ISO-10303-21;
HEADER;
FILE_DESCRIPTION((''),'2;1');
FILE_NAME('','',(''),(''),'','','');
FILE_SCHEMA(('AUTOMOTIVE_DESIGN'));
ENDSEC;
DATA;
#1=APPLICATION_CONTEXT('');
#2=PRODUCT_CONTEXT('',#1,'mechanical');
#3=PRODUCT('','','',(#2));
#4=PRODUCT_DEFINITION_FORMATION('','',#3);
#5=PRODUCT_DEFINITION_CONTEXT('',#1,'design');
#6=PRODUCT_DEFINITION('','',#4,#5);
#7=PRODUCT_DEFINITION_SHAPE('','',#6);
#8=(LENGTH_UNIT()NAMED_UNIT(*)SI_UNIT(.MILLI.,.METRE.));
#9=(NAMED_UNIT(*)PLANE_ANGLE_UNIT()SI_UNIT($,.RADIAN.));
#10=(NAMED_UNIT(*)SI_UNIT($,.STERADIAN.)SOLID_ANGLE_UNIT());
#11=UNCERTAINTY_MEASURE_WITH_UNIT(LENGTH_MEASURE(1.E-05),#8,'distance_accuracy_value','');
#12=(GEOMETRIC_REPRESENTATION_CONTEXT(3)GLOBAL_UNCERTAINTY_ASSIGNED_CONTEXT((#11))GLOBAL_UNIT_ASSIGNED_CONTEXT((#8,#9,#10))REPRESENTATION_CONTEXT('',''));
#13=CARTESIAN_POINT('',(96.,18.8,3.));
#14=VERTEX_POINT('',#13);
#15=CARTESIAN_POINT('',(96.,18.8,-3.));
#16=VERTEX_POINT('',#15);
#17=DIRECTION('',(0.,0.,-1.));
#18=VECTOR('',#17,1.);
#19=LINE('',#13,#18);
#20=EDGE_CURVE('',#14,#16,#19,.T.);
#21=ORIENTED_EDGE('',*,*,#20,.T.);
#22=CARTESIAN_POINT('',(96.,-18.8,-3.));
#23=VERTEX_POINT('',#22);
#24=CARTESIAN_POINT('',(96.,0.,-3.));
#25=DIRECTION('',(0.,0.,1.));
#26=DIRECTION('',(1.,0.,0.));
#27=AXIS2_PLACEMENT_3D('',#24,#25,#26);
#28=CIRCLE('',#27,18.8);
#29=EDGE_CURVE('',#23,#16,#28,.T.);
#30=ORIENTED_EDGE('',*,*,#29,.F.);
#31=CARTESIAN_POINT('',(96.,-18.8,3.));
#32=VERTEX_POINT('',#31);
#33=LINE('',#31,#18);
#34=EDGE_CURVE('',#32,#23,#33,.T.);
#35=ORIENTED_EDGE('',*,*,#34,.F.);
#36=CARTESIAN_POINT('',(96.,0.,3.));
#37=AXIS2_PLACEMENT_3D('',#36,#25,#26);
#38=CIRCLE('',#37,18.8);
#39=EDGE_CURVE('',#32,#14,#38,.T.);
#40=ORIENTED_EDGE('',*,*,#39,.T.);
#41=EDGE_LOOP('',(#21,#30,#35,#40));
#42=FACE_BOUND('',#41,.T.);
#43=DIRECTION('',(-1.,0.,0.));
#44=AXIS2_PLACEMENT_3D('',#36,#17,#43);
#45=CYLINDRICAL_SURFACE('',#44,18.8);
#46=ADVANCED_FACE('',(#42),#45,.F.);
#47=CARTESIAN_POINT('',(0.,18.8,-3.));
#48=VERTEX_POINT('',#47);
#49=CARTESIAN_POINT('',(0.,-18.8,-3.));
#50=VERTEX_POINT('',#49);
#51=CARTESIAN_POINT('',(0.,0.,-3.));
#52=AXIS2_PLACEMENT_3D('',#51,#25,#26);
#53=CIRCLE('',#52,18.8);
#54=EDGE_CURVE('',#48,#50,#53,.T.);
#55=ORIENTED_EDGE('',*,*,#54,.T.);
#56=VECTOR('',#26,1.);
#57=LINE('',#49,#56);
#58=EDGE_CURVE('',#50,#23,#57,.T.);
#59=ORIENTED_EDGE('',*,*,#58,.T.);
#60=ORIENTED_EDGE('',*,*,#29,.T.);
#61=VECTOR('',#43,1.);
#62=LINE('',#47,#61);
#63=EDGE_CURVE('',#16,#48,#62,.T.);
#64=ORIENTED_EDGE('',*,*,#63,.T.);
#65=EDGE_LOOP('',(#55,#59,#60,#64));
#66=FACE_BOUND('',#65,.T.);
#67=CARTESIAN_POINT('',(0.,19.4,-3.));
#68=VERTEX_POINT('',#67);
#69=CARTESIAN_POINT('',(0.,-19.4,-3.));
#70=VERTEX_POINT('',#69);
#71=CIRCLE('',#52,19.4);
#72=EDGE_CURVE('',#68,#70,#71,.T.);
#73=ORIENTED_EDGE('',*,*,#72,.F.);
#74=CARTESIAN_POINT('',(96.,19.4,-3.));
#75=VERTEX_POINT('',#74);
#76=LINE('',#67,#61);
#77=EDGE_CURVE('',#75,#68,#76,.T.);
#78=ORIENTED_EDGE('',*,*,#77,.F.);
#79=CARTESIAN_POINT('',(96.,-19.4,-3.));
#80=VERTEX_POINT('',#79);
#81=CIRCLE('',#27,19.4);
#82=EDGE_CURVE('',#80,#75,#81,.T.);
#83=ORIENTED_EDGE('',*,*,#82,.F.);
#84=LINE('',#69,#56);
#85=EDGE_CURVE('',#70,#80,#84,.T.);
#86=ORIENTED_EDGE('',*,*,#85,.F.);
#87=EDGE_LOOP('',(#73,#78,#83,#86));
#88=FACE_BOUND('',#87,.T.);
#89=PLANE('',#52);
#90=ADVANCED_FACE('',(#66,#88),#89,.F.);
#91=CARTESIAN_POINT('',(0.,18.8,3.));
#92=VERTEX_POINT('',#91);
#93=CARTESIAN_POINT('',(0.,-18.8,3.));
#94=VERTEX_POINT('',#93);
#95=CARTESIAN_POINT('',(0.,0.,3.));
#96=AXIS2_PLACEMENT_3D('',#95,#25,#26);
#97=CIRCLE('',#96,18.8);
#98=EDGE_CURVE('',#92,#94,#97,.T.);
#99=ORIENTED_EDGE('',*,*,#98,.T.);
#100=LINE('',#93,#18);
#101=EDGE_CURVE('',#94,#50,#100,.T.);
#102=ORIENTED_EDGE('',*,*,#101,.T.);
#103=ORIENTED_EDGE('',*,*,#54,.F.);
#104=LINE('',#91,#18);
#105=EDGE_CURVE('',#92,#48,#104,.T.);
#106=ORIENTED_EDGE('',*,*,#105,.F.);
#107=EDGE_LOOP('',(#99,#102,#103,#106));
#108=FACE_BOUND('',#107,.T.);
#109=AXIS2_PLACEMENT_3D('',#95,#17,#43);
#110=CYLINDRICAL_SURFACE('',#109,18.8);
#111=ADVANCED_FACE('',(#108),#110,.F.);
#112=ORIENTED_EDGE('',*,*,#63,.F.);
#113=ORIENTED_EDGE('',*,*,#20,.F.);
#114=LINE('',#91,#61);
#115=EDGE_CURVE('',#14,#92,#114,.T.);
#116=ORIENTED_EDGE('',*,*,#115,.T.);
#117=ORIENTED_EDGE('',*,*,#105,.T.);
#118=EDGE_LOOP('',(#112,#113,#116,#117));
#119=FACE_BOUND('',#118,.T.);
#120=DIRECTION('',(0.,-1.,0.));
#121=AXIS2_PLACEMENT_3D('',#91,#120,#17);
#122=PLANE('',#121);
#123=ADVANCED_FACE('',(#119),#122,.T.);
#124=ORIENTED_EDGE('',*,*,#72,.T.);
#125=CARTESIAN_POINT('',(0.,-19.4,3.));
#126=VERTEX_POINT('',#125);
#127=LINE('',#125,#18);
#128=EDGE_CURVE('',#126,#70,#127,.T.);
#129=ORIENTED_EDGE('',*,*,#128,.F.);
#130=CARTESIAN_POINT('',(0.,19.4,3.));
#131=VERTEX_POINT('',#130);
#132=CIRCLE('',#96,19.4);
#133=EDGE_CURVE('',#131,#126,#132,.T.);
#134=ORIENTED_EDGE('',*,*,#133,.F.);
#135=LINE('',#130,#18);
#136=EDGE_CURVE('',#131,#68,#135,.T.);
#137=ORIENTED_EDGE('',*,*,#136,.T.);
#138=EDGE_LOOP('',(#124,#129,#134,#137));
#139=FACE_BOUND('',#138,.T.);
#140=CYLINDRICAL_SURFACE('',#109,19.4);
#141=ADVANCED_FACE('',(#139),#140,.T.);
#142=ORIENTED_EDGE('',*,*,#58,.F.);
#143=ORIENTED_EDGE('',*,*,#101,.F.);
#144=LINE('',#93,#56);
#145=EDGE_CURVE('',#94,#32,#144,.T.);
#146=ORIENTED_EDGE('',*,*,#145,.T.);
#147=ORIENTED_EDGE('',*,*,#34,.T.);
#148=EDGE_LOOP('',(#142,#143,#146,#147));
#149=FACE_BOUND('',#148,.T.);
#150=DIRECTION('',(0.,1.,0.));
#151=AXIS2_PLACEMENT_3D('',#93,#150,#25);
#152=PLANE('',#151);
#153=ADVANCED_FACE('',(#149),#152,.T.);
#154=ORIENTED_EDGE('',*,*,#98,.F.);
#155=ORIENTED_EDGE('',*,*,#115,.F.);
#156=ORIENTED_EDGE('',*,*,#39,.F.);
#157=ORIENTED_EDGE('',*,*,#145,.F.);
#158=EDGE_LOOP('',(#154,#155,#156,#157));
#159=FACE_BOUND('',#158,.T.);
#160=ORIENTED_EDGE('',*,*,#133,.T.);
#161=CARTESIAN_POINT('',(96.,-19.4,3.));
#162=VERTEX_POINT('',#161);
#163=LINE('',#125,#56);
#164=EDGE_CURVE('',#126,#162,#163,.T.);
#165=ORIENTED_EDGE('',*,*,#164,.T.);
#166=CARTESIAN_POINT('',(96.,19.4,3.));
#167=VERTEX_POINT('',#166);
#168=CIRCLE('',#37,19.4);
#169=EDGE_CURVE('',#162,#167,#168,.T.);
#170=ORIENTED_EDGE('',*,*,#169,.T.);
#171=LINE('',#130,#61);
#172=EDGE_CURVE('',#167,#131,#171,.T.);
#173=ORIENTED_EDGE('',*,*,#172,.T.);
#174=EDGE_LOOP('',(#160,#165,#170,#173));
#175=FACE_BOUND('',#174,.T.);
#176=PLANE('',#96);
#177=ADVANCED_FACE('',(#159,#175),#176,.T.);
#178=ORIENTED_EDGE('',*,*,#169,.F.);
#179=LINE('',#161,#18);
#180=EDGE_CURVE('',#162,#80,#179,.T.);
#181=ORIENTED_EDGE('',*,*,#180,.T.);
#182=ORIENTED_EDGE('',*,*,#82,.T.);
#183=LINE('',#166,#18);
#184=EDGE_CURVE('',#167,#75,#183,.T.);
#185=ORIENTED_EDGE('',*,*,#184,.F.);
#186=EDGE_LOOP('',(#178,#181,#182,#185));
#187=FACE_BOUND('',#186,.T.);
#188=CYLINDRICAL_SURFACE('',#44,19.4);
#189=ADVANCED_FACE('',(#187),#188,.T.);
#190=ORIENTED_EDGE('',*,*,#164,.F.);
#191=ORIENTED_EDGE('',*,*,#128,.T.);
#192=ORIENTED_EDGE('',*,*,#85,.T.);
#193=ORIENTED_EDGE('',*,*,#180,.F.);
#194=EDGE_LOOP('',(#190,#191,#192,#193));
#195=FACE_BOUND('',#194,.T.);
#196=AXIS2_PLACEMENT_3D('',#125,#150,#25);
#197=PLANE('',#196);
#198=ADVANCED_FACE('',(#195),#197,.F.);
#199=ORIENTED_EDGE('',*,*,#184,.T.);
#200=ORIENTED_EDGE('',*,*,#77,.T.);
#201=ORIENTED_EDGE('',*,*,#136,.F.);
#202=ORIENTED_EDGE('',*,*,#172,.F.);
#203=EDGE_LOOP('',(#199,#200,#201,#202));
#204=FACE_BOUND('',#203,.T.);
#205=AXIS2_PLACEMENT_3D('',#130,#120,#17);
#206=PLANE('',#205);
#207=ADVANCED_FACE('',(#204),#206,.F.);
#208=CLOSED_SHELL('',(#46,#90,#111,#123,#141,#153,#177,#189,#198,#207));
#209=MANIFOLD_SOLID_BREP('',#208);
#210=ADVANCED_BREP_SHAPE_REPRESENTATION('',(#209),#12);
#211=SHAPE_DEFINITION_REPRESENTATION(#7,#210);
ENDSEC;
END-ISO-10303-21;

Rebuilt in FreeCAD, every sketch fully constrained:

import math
import FreeCAD as App
import Part
import Sketcher
from FreeCAD import Vector
Q = App.Units.Quantity

doc = App.newDocument("Part")
body = doc.addObject("PartDesign::Body", "Body")

# Sketch on XY plane
sketch1 = doc.addObject("Sketcher::SketchObject", "Sketch")
body.addObject(sketch1)
sketch1.AttachmentSupport = (doc.XY_Plane, [""])
sketch1.MapMode = "FlatFace"
sketch1.addGeometry([
    Part.LineSegment(Vector(0, -19.4, 0), Vector(96, -19.4, 0)),  # 0
    Part.ArcOfCircle(Part.Circle(Vector(96, 0, 0), Vector(0, 0, 1), 19.4), math.radians(-90), math.radians(90)),  # 1
    Part.LineSegment(Vector(96, 19.4, 0), Vector(0, 19.4, 0)),  # 2
    Part.ArcOfCircle(Part.Circle(Vector(0, 0, 0), Vector(0, 0, 1), 19.4), math.radians(90), math.radians(270)),  # 3
    Part.ArcOfCircle(Part.Circle(Vector(0, 0, 0), Vector(0, 0, 1), 18.8), math.radians(90), math.radians(270)),  # 4
    Part.LineSegment(Vector(0, 18.8, 0), Vector(96, 18.8, 0)),  # 5
    Part.ArcOfCircle(Part.Circle(Vector(96, 0, 0), Vector(0, 0, 1), 18.8), math.radians(-90), math.radians(90)),  # 6
    Part.LineSegment(Vector(96, -18.8, 0), Vector(0, -18.8, 0)),  # 7
], False)
sketch1.addConstraint([
    Sketcher.Constraint("Tangent", 0, 2, 1, 1),
    Sketcher.Constraint("Tangent", 1, 2, 2, 1),
    Sketcher.Constraint("Tangent", 2, 2, 3, 1),
    Sketcher.Constraint("Tangent", 3, 2, 0, 1),
    Sketcher.Constraint("Tangent", 4, 1, 5, 1),
    Sketcher.Constraint("Tangent", 5, 2, 6, 2),
    Sketcher.Constraint("Tangent", 6, 1, 7, 1),
    Sketcher.Constraint("Tangent", 7, 2, 4, 2),
    Sketcher.Constraint("Horizontal", 0),
    Sketcher.Constraint("Horizontal", 2),
    Sketcher.Constraint("Horizontal", 5),
    Sketcher.Constraint("Horizontal", 7),
    Sketcher.Constraint("Coincident", 3, 3, -1, 1),
    Sketcher.Constraint("Coincident", 4, 3, -1, 1),
    Sketcher.Constraint("Vertical", 6, 3, 0, 2),
    Sketcher.Constraint("Radius", 1, Q("19.4 mm")),
    Sketcher.Constraint("Radius", 4, Q("18.8 mm")),
    Sketcher.Constraint("DistanceX", 0, 1, 0, 2, Q("96 mm")),
])
pad1 = doc.addObject("PartDesign::Pad", "Pad")
body.addObject(pad1)
pad1.Profile = sketch1
pad1.Length = 6
pad1.Midplane = True

doc.recompute()
